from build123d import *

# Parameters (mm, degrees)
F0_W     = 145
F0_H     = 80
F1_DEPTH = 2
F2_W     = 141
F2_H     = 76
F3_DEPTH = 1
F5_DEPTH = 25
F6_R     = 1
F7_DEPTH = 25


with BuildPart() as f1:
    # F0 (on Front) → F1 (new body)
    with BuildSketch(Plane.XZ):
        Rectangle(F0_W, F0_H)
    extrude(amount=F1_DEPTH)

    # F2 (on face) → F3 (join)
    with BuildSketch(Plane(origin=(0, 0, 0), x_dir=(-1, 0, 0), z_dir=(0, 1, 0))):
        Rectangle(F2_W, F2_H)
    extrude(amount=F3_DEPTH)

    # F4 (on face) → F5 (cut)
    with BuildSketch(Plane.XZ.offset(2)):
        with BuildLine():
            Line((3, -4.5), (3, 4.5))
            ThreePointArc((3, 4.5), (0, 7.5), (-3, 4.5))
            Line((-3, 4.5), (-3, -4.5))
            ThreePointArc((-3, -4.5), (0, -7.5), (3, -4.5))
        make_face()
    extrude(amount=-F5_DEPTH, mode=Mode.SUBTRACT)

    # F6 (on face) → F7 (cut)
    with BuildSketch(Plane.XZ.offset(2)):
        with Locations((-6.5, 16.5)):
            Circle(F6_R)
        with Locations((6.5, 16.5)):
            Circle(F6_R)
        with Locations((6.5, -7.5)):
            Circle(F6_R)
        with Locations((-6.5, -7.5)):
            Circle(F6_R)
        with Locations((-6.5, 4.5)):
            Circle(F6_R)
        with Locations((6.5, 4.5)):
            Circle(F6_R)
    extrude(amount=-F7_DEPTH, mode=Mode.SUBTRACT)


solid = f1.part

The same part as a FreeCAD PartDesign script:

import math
import FreeCAD as App
import Part
import Sketcher
Q = App.Units.Quantity


def add_polygon(sketch, points):
    """Adds a closed chain of lines whose ends are joined by coincident constraints."""
    first, n = sketch.GeometryCount, len(points)
    for a, b in zip(points, points[1:] + points[:1]):
        sketch.addGeometry(Part.LineSegment(App.Vector(*a, 0), App.Vector(*b, 0)), False)
    for i in range(n):
        sketch.addConstraint(Sketcher.Constraint("Coincident", first + i, 2, first + (i + 1) % n, 1))

doc = App.newDocument("Part")
body = doc.addObject("PartDesign::Body", "Body")

# Sketch on XZ plane
sketch1 = body.newObject("Sketcher::SketchObject", "Sketch")
sketch1.AttachmentSupport = (doc.getObject("XZ_Plane"), [""])
sketch1.MapMode = "FlatFace"
add_polygon(sketch1, [(-72.5, 40), (-72.5, -40), (72.5, -40), (72.5, 40)])  # lines 0-3
sketch1.addConstraint(Sketcher.Constraint("Vertical", 0))
sketch1.addConstraint(Sketcher.Constraint("Horizontal", 1))
sketch1.addConstraint(Sketcher.Constraint("Vertical", 2))
sketch1.addConstraint(Sketcher.Constraint("Horizontal", 3))
sketch1.addConstraint(Sketcher.Constraint("Symmetric", 0, 2, 2, 2, -1, 1))
sketch1.addConstraint(Sketcher.Constraint("DistanceX", 1, 1, 1, 2, Q("145 mm")))
sketch1.addConstraint(Sketcher.Constraint("DistanceY", 0, 2, 0, 1, Q("80 mm")))
pad1 = body.newObject("PartDesign::Pad", "Pad")
pad1.Profile = sketch1
pad1.Length = 2

# Sketch on XZ plane
sketch2 = body.newObject("Sketcher::SketchObject", "Sketch001")
sketch2.AttachmentSupport = (doc.getObject("XZ_Plane"), [""])
sketch2.MapMode = "FlatFace"
add_polygon(sketch2, [(70.5, 38), (70.5, -38), (-70.5, -38), (-70.5, 38)])  # lines 0-3
sketch2.addConstraint(Sketcher.Constraint("Vertical", 0))
sketch2.addConstraint(Sketcher.Constraint("Horizontal", 1))
sketch2.addConstraint(Sketcher.Constraint("Vertical", 2))
sketch2.addConstraint(Sketcher.Constraint("Horizontal", 3))
sketch2.addConstraint(Sketcher.Constraint("Symmetric", 0, 2, 2, 2, -1, 1))
sketch2.addConstraint(Sketcher.Constraint("DistanceX", 1, 2, 1, 1, Q("141 mm")))
sketch2.addConstraint(Sketcher.Constraint("DistanceY", 0, 2, 0, 1, Q("76 mm")))
pad2 = body.newObject("PartDesign::Pad", "Pad001")
pad2.Profile = sketch2
pad2.Length = 1
pad2.Reversed = True

# Sketch on XZ plane
sketch3 = body.newObject("Sketcher::SketchObject", "Sketch002")
sketch3.AttachmentSupport = (doc.getObject("XZ_Plane"), [""])
sketch3.MapMode = "FlatFace"
sketch3.AttachmentOffset = App.Placement(App.Vector(0, 0, 2), App.Rotation())
sketch3.addGeometry(Part.LineSegment(App.Vector(3, -4.5, 0), App.Vector(3, 4.5, 0)), False)
sketch3.addGeometry(Part.ArcOfCircle(Part.Circle(App.Vector(0, 4.5, 0), App.Vector(0, 0, 1), 3), math.radians(0), math.radians(180)), False)
sketch3.addGeometry(Part.LineSegment(App.Vector(-3, 4.5, 0), App.Vector(-3, -4.5, 0)), False)
sketch3.addGeometry(Part.ArcOfCircle(Part.Circle(App.Vector(0, -4.5, 0), App.Vector(0, 0, 1), 3), math.radians(180), math.radians(360)), False)
sketch3.addConstraint(Sketcher.Constraint("Tangent", 0, 2, 1, 1))
sketch3.addConstraint(Sketcher.Constraint("Tangent", 1, 2, 2, 1))
sketch3.addConstraint(Sketcher.Constraint("Tangent", 2, 2, 3, 1))
sketch3.addConstraint(Sketcher.Constraint("Tangent", 3, 2, 0, 1))
sketch3.addConstraint(Sketcher.Constraint("Vertical", 0))
sketch3.addConstraint(Sketcher.Constraint("Vertical", 2))
sketch3.addConstraint(Sketcher.Constraint("Symmetric", 1, 3, 3, 3, -1, 1))
sketch3.addConstraint(Sketcher.Constraint("Radius", 1, Q("3 mm")))
sketch3.addConstraint(Sketcher.Constraint("DistanceY", 0, 1, 0, 2, Q("9 mm")))
pocket1 = body.newObject("PartDesign::Pocket", "Pocket")
pocket1.Profile = sketch3
pocket1.Length = 25

# Sketch on XZ plane
sketch4 = body.newObject("Sketcher::SketchObject", "Sketch003")
sketch4.AttachmentSupport = (doc.getObject("XZ_Plane"), [""])
sketch4.MapMode = "FlatFace"
sketch4.AttachmentOffset = App.Placement(App.Vector(0, 0, 2), App.Rotation())
sketch4.addGeometry(Part.Circle(App.Vector(-6.5, 16.5, 0), App.Vector(0, 0, 1), 1), False)
sketch4.addGeometry(Part.Circle(App.Vector(6.5, 16.5, 0), App.Vector(0, 0, 1), 1), False)
sketch4.addGeometry(Part.Circle(App.Vector(6.5, -7.5, 0), App.Vector(0, 0, 1), 1), False)
sketch4.addGeometry(Part.Circle(App.Vector(-6.5, -7.5, 0), App.Vector(0, 0, 1), 1), False)
sketch4.addGeometry(Part.Circle(App.Vector(-6.5, 4.5, 0), App.Vector(0, 0, 1), 1), False)
sketch4.addGeometry(Part.Circle(App.Vector(6.5, 4.5, 0), App.Vector(0, 0, 1), 1), False)
sketch4.addConstraint(Sketcher.Constraint("Equal", 0, 1))
sketch4.addConstraint(Sketcher.Constraint("Equal", 1, 2))
sketch4.addConstraint(Sketcher.Constraint("Equal", 2, 3))
sketch4.addConstraint(Sketcher.Constraint("Equal", 3, 4))
sketch4.addConstraint(Sketcher.Constraint("Equal", 4, 5))
sketch4.addConstraint(Sketcher.Constraint("Symmetric", 0, 3, 1, 3, -2))
sketch4.addConstraint(Sketcher.Constraint("Symmetric", 2, 3, 3, 3, -2))
sketch4.addConstraint(Sketcher.Constraint("Symmetric", 4, 3, 5, 3, -2))
sketch4.addConstraint(Sketcher.Constraint("Vertical", 1, 3, 2, 3))
sketch4.addConstraint(Sketcher.Constraint("Vertical", 3, 3, 4, 3))
sketch4.addConstraint(Sketcher.Constraint("Diameter", 0, Q("2 mm")))
sketch4.addConstraint(Sketcher.Constraint("DistanceX", 0, 3, 1, 3, Q("13 mm")))
sketch4.addConstraint(Sketcher.Constraint("DistanceY", 2, 3, 1, 3, Q("24 mm")))
sketch4.addConstraint(Sketcher.Constraint("DistanceY", 4, 3, 0, 3, Q("12 mm")))
sketch4.addConstraint(Sketcher.Constraint("DistanceY", -1, 1, 0, 3, Q("16.5 mm")))
pocket2 = body.newObject("PartDesign::Pocket", "Pocket001")
pocket2.Profile = sketch4
pocket2.Length = 25

doc.recompute()
